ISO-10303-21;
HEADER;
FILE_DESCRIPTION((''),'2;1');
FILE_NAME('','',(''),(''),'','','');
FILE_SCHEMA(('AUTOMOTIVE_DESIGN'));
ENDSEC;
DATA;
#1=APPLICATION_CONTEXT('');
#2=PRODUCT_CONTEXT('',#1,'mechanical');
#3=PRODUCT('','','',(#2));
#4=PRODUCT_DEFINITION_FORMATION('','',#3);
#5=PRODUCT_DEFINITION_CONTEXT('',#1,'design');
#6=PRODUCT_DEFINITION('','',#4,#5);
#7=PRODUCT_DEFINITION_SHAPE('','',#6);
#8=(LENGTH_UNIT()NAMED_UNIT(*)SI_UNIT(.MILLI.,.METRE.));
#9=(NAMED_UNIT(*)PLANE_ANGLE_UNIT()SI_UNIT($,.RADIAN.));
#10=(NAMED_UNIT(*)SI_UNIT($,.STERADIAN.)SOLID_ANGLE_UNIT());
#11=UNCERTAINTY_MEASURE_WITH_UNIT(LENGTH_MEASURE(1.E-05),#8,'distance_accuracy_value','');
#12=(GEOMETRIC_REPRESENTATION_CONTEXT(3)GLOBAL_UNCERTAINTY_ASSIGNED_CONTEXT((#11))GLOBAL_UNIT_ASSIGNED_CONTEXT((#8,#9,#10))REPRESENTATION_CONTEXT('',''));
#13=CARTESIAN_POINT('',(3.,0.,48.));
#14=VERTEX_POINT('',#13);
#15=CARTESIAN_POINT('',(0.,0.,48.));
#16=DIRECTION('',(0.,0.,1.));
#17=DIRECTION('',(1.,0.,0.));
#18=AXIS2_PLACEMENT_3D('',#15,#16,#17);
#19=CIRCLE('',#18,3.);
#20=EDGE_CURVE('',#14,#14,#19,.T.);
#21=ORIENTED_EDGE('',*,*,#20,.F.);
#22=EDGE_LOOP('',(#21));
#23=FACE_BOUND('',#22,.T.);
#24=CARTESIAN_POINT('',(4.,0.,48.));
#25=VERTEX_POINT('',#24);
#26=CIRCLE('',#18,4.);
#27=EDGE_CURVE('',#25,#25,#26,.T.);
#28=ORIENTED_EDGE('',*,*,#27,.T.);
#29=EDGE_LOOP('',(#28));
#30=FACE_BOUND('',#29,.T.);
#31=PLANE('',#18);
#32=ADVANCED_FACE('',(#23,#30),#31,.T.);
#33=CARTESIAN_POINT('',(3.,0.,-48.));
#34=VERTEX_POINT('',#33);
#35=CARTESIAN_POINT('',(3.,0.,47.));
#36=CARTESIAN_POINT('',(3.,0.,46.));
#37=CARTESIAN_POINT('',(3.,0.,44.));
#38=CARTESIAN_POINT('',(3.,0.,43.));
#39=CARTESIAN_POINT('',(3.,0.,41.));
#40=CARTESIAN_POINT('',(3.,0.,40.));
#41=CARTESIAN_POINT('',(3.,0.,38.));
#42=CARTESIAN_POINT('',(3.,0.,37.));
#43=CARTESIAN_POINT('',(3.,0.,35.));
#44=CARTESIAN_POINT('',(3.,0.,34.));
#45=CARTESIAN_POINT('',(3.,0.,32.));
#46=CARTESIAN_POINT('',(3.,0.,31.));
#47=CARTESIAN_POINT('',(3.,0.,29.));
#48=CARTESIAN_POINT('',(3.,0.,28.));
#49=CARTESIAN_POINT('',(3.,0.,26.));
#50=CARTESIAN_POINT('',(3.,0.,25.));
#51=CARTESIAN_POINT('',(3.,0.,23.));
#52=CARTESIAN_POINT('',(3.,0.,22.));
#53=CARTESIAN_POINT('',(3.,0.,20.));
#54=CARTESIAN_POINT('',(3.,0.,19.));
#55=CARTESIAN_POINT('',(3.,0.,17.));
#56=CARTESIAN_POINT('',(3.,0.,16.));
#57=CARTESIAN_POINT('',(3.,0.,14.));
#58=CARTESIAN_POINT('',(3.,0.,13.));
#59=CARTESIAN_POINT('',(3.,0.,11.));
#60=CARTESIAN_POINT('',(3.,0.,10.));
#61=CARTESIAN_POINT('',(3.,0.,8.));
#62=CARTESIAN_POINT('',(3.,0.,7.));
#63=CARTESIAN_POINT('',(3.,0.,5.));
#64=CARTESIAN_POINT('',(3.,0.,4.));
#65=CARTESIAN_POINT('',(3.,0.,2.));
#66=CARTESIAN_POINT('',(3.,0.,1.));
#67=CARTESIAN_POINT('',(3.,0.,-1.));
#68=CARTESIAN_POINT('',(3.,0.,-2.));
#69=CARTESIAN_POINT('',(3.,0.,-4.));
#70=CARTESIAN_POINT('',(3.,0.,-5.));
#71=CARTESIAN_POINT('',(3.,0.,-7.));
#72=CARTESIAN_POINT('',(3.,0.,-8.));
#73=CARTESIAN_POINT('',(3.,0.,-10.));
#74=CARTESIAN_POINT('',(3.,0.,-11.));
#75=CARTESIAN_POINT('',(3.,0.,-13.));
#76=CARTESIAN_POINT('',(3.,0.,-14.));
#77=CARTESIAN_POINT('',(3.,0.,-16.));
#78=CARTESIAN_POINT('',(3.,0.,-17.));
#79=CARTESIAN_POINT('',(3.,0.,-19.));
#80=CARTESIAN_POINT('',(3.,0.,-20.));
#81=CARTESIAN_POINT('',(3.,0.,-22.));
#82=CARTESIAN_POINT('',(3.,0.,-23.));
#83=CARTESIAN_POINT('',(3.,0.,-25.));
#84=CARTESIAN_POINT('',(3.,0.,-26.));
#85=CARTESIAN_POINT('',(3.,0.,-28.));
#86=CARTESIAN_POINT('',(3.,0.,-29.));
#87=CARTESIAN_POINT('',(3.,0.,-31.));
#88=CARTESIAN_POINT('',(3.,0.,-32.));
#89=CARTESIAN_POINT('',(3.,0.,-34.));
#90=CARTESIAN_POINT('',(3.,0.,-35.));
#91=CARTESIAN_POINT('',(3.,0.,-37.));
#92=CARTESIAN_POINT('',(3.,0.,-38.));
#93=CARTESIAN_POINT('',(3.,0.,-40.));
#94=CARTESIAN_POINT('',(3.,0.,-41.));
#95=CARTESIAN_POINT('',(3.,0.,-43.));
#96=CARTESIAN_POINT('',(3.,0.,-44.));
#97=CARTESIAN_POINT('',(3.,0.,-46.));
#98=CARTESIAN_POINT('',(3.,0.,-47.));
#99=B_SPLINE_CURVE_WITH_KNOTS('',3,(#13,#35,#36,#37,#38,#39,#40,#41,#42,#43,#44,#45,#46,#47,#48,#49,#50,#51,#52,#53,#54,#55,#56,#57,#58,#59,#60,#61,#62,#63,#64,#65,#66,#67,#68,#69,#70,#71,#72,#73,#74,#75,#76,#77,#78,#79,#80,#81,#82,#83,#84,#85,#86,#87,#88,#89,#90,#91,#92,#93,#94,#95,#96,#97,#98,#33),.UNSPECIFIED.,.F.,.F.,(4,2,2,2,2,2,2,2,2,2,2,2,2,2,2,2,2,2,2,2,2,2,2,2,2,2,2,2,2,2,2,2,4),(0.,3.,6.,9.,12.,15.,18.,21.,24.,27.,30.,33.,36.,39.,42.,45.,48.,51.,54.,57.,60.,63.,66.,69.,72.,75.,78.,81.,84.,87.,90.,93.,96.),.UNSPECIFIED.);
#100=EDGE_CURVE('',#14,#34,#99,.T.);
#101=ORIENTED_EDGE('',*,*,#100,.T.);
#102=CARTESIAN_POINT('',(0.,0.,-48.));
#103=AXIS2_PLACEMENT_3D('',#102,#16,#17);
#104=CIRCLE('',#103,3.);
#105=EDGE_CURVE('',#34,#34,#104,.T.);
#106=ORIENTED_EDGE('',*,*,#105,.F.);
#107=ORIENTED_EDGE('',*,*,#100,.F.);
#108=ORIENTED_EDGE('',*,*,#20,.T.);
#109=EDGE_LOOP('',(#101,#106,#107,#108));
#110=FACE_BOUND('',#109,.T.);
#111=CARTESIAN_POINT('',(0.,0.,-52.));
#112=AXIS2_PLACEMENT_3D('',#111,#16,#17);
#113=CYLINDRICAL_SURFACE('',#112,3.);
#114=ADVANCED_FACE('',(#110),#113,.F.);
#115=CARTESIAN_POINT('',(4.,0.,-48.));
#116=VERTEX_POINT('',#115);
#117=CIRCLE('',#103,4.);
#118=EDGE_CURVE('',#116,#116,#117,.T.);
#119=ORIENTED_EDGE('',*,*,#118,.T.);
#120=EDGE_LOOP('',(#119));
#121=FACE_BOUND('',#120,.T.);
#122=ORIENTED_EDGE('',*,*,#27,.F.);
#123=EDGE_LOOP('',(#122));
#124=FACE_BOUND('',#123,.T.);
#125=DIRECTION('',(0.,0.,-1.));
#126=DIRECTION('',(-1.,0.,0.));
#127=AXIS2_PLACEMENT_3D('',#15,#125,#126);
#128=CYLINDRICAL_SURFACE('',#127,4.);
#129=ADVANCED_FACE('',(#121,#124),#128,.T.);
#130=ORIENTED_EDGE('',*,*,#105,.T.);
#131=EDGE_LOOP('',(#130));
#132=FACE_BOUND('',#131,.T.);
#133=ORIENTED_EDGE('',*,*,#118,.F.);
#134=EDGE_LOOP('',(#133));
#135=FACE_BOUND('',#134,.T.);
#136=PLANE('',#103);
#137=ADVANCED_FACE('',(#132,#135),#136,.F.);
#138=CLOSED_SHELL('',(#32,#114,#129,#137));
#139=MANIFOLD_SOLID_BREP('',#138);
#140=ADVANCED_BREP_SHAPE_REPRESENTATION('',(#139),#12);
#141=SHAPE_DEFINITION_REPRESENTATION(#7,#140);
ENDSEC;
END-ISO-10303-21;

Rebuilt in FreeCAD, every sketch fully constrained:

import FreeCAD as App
import Part
import Sketcher

V = App.Vector

doc = App.newDocument("Part")
body = doc.addObject("PartDesign::Body", "Body")

sketch1 = body.newObject("Sketcher::SketchObject", "Sketch")
sketch1.AttachmentSupport = (doc.getObject("XY_Plane"), [""])
sketch1.MapMode = "FlatFace"
sketch1.addGeometry(Part.Circle(V(0, 0, 0), V(0, 0, 1), 4), False)
sketch1.addConstraint(Sketcher.Constraint("Coincident", 0, 3, -1, 1))
sketch1.addConstraint(Sketcher.Constraint("Diameter", 0, 8.0))
pad1 = body.newObject("PartDesign::Pad", "Pad")
pad1.Profile = sketch1
pad1.Length = 96
pad1.Midplane = True

sketch2 = body.newObject("Sketcher::SketchObject", "Sketch001")
sketch2.AttachmentSupport = (doc.getObject("XY_Plane"), [""])
sketch2.MapMode = "FlatFace"
sketch2.AttachmentOffset = App.Placement(V(0, 0, 48), App.Rotation())
sketch2.addGeometry(Part.Circle(V(0, 0, 0), V(0, 0, 1), 3), False)
sketch2.addConstraint(Sketcher.Constraint("Coincident", 0, 3, -1, 1))
sketch2.addConstraint(Sketcher.Constraint("Diameter", 0, 6.0))
pocket1 = body.newObject("PartDesign::Pocket", "Pocket")
pocket1.Profile = sketch2
pocket1.Length = 100

doc.recompute()
